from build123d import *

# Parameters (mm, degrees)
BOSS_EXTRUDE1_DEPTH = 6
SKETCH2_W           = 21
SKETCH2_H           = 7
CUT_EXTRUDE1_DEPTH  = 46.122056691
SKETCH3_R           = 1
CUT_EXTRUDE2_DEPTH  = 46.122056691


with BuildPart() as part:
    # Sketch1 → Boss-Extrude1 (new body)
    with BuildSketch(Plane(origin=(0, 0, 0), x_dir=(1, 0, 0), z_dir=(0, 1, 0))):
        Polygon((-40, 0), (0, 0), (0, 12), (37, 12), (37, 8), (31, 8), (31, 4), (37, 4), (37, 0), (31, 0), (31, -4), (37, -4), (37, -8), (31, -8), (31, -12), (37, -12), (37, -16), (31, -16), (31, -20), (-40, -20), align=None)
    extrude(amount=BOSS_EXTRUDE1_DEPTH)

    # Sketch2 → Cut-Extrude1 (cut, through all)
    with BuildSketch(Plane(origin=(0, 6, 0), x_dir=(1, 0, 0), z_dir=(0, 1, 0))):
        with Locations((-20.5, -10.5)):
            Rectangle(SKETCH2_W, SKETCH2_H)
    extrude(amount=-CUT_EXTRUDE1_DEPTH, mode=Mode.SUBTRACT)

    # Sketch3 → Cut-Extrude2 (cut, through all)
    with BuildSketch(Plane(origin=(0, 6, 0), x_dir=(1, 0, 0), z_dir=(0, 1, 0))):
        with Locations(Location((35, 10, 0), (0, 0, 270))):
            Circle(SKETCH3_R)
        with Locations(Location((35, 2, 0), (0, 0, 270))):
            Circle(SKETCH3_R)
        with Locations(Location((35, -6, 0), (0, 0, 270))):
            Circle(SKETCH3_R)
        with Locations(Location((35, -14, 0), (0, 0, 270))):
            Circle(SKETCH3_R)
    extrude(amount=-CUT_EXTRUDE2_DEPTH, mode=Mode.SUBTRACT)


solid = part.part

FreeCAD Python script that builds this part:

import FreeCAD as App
import Part
import Sketcher

doc = App.newDocument("Part")
body = doc.addObject("PartDesign::Body", "Body")

# Sketch on XZ plane
sketch1 = body.newObject("Sketcher::SketchObject", "Sketch")
sketch1.AttachmentSupport = (doc.getObject("XZ_Plane"), [""])
sketch1.MapMode = "FlatFace"
sketch1.addGeometry([
    Part.LineSegment(App.Vector(0, 0, 0), App.Vector(-40, 0, 0)),  # 0
    Part.LineSegment(App.Vector(-40, 0, 0), App.Vector(-40, 20, 0)),  # 1
    Part.LineSegment(App.Vector(-40, 20, 0), App.Vector(31, 20, 0)),  # 2
    Part.LineSegment(App.Vector(31, 20, 0), App.Vector(31, 16, 0)),  # 3
    Part.LineSegment(App.Vector(31, 16, 0), App.Vector(37, 16, 0)),  # 4
    Part.LineSegment(App.Vector(37, 16, 0), App.Vector(37, 12, 0)),  # 5
    Part.LineSegment(App.Vector(37, 12, 0), App.Vector(31, 12, 0)),  # 6
    Part.LineSegment(App.Vector(31, 12, 0), App.Vector(31, 8, 0)),  # 7
    Part.LineSegment(App.Vector(31, 8, 0), App.Vector(37, 8, 0)),  # 8
    Part.LineSegment(App.Vector(37, 8, 0), App.Vector(37, 4, 0)),  # 9
    Part.LineSegment(App.Vector(37, 4, 0), App.Vector(31, 4, 0)),  # 10
    Part.LineSegment(App.Vector(31, 4, 0), App.Vector(31, 0, 0)),  # 11
    Part.LineSegment(App.Vector(31, 0, 0), App.Vector(37, 0, 0)),  # 12
    Part.LineSegment(App.Vector(37, 0, 0), App.Vector(37, -4, 0)),  # 13
    Part.LineSegment(App.Vector(37, -4, 0), App.Vector(31, -4, 0)),  # 14
    Part.LineSegment(App.Vector(31, -4, 0), App.Vector(31, -8, 0)),  # 15
    Part.LineSegment(App.Vector(31, -8, 0), App.Vector(37, -8, 0)),  # 16
    Part.LineSegment(App.Vector(37, -8, 0), App.Vector(37, -12, 0)),  # 17
    Part.LineSegment(App.Vector(37, -12, 0), App.Vector(0, -12, 0)),  # 18
    Part.LineSegment(App.Vector(0, -12, 0), App.Vector(0, 0, 0)),  # 19
], False)
sketch1.addConstraint([
    Sketcher.Constraint("Coincident", 0, 2, 1, 1),
    Sketcher.Constraint("Coincident", 1, 2, 2, 1),
    Sketcher.Constraint("Coincident", 2, 2, 3, 1),
    Sketcher.Constraint("Coincident", 3, 2, 4, 1),
    Sketcher.Constraint("Coincident", 4, 2, 5, 1),
    Sketcher.Constraint("Coincident", 5, 2, 6, 1),
    Sketcher.Constraint("Coincident", 6, 2, 7, 1),
    Sketcher.Constraint("Coincident", 7, 2, 8, 1),
    Sketcher.Constraint("Coincident", 8, 2, 9, 1),
    Sketcher.Constraint("Coincident", 9, 2, 10, 1),
    Sketcher.Constraint("Coincident", 10, 2, 11, 1),
    Sketcher.Constraint("Coincident", 11, 2, 12, 1),
    Sketcher.Constraint("Coincident", 12, 2, 13, 1),
    Sketcher.Constraint("Coincident", 13, 2, 14, 1),
    Sketcher.Constraint("Coincident", 14, 2, 15, 1),
    Sketcher.Constraint("Coincident", 15, 2, 16, 1),
    Sketcher.Constraint("Coincident", 16, 2, 17, 1),
    Sketcher.Constraint("Coincident", 17, 2, 18, 1),
    Sketcher.Constraint("Coincident", 18, 2, 19, 1),
    Sketcher.Constraint("Coincident", 19, 2, 0, 1),
    Sketcher.Constraint("Horizontal", 0),
    Sketcher.Constraint("Vertical", 1),
    Sketcher.Constraint("Horizontal", 2),
    Sketcher.Constraint("Vertical", 3),
    Sketcher.Constraint("Horizontal", 4),
    Sketcher.Constraint("Vertical", 5),
    Sketcher.Constraint("Horizontal", 6),
    Sketcher.Constraint("Vertical", 7),
    Sketcher.Constraint("Horizontal", 8),
    Sketcher.Constraint("Vertical", 9),
    Sketcher.Constraint("Horizontal", 10),
    Sketcher.Constraint("Vertical", 11),
    Sketcher.Constraint("Horizontal", 12),
    Sketcher.Constraint("Vertical", 13),
    Sketcher.Constraint("Horizontal", 14),
    Sketcher.Constraint("Vertical", 15),
    Sketcher.Constraint("Horizontal", 16),
    Sketcher.Constraint("Vertical", 17),
    Sketcher.Constraint("Horizontal", 18),
    Sketcher.Constraint("Vertical", 19),
    Sketcher.Constraint("Coincident", 19, 2, -1, 1),
    Sketcher.Constraint("Symmetric", 9, 2, 13, 2, -1),
    Sketcher.Constraint("Symmetric", 7, 2, 15, 2, -1),
    Sketcher.Constraint("Symmetric", 5, 2, 17, 2, -1),
    Sketcher.Constraint("PointOnObject", 11, 2, -1),
    Sketcher.Constraint("Vertical", 3, 2, 6, 2),
    Sketcher.Constraint("Vertical", 5, 2, 8, 2),
    Sketcher.Constraint("Vertical", 7, 2, 10, 2),
    Sketcher.Constraint("Equal", 3, 5),
    Sketcher.Constraint("Equal", 5, 7),
    Sketcher.Constraint("Equal", 7, 9),
    Sketcher.Constraint("Equal", 9, 11),
    Sketcher.Constraint("DistanceX", 0, 2, 0, 1, 40.0),
    Sketcher.Constraint("DistanceX", 2, 1, 2, 2, 71.0),
    Sketcher.Constraint("DistanceX", 4, 1, 4, 2, 6.0),
    Sketcher.Constraint("DistanceY", 1, 1, 1, 2, 20.0),
])
pad1 = body.newObject("PartDesign::Pad", "Pad")
pad1.Profile = sketch1
pad1.Length = 6
pad1.Reversed = True

# Sketch on XZ plane
sketch2 = body.newObject("Sketcher::SketchObject", "Sketch001")
sketch2.AttachmentSupport = (doc.getObject("XZ_Plane"), [""])
sketch2.MapMode = "FlatFace"
sketch2.AttachmentOffset = App.Placement(App.Vector(0, 0, -6), App.Rotation())
sketch2.addGeometry([
    Part.LineSegment(App.Vector(-31, 7, 0), App.Vector(-31, 14, 0)),
    Part.LineSegment(App.Vector(-31, 14, 0), App.Vector(-10, 14, 0)),
    Part.LineSegment(App.Vector(-10, 14, 0), App.Vector(-10, 7, 0)),
    Part.LineSegment(App.Vector(-10, 7, 0), App.Vector(-31, 7, 0)),
], False)
sketch2.addConstraint([
    Sketcher.Constraint("Coincident", 0, 2, 1, 1),
    Sketcher.Constraint("Coincident", 1, 2, 2, 1),
    Sketcher.Constraint("Coincident", 2, 2, 3, 1),
    Sketcher.Constraint("Coincident", 3, 2, 0, 1),
    Sketcher.Constraint("Vertical", 0),
    Sketcher.Constraint("Horizontal", 1),
    Sketcher.Constraint("Vertical", 2),
    Sketcher.Constraint("Horizontal", 3),
    Sketcher.Constraint("DistanceX", 1, 1, 1, 2, 21.0),
    Sketcher.Constraint("DistanceY", 0, 1, 0, 2, 7.0),
    Sketcher.Constraint("DistanceX", 0, 2, -1, 1, 31.0),
    Sketcher.Constraint("DistanceY", -1, 1, 0, 2, 14.0),
])
pocket1 = body.newObject("PartDesign::Pocket", "Pocket")
pocket1.Profile = sketch2
pocket1.Type = "ThroughAll"
pocket1.Reversed = True

# Sketch on XZ plane
sketch3 = body.newObject("Sketcher::SketchObject", "Sketch002")
sketch3.AttachmentSupport = (doc.getObject("XZ_Plane"), [""])
sketch3.MapMode = "FlatFace"
sketch3.AttachmentOffset = App.Placement(App.Vector(0, 0, -6), App.Rotation())
sketch3.addGeometry([
    Part.Circle(App.Vector(35, -10, 0), App.Vector(0, 0, 1), 1),
    Part.Circle(App.Vector(35, -2, 0), App.Vector(0, 0, 1), 1),
    Part.Circle(App.Vector(35, 6, 0), App.Vector(0, 0, 1), 1),
    Part.Circle(App.Vector(35, 14, 0), App.Vector(0, 0, 1), 1),
], False)
sketch3.addConstraint([
    Sketcher.Constraint("Equal", 0, 1),
    Sketcher.Constraint("Equal", 1, 2),
    Sketcher.Constraint("Equal", 2, 3),
    Sketcher.Constraint("Vertical", 0, 3, 1, 3),
    Sketcher.Constraint("Vertical", 1, 3, 2, 3),
    Sketcher.Constraint("Vertical", 2, 3, 3, 3),
    Sketcher.Constraint("Diameter", 0, 2.0),
    Sketcher.Constraint("DistanceX", -1, 1, 0, 3, 35.0),
    Sketcher.Constraint("DistanceY", 0, 3, -1, 1, 10.0),
    Sketcher.Constraint("DistanceY", 1, 3, -1, 1, 2.0),
    Sketcher.Constraint("DistanceY", -1, 1, 2, 3, 6.0),
    Sketcher.Constraint("DistanceY", -1, 1, 3, 3, 14.0),
])
pocket2 = body.newObject("PartDesign::Pocket", "Pocket001")
pocket2.Profile = sketch3
pocket2.Type = "ThroughAll"
pocket2.Reversed = True

doc.recompute()
